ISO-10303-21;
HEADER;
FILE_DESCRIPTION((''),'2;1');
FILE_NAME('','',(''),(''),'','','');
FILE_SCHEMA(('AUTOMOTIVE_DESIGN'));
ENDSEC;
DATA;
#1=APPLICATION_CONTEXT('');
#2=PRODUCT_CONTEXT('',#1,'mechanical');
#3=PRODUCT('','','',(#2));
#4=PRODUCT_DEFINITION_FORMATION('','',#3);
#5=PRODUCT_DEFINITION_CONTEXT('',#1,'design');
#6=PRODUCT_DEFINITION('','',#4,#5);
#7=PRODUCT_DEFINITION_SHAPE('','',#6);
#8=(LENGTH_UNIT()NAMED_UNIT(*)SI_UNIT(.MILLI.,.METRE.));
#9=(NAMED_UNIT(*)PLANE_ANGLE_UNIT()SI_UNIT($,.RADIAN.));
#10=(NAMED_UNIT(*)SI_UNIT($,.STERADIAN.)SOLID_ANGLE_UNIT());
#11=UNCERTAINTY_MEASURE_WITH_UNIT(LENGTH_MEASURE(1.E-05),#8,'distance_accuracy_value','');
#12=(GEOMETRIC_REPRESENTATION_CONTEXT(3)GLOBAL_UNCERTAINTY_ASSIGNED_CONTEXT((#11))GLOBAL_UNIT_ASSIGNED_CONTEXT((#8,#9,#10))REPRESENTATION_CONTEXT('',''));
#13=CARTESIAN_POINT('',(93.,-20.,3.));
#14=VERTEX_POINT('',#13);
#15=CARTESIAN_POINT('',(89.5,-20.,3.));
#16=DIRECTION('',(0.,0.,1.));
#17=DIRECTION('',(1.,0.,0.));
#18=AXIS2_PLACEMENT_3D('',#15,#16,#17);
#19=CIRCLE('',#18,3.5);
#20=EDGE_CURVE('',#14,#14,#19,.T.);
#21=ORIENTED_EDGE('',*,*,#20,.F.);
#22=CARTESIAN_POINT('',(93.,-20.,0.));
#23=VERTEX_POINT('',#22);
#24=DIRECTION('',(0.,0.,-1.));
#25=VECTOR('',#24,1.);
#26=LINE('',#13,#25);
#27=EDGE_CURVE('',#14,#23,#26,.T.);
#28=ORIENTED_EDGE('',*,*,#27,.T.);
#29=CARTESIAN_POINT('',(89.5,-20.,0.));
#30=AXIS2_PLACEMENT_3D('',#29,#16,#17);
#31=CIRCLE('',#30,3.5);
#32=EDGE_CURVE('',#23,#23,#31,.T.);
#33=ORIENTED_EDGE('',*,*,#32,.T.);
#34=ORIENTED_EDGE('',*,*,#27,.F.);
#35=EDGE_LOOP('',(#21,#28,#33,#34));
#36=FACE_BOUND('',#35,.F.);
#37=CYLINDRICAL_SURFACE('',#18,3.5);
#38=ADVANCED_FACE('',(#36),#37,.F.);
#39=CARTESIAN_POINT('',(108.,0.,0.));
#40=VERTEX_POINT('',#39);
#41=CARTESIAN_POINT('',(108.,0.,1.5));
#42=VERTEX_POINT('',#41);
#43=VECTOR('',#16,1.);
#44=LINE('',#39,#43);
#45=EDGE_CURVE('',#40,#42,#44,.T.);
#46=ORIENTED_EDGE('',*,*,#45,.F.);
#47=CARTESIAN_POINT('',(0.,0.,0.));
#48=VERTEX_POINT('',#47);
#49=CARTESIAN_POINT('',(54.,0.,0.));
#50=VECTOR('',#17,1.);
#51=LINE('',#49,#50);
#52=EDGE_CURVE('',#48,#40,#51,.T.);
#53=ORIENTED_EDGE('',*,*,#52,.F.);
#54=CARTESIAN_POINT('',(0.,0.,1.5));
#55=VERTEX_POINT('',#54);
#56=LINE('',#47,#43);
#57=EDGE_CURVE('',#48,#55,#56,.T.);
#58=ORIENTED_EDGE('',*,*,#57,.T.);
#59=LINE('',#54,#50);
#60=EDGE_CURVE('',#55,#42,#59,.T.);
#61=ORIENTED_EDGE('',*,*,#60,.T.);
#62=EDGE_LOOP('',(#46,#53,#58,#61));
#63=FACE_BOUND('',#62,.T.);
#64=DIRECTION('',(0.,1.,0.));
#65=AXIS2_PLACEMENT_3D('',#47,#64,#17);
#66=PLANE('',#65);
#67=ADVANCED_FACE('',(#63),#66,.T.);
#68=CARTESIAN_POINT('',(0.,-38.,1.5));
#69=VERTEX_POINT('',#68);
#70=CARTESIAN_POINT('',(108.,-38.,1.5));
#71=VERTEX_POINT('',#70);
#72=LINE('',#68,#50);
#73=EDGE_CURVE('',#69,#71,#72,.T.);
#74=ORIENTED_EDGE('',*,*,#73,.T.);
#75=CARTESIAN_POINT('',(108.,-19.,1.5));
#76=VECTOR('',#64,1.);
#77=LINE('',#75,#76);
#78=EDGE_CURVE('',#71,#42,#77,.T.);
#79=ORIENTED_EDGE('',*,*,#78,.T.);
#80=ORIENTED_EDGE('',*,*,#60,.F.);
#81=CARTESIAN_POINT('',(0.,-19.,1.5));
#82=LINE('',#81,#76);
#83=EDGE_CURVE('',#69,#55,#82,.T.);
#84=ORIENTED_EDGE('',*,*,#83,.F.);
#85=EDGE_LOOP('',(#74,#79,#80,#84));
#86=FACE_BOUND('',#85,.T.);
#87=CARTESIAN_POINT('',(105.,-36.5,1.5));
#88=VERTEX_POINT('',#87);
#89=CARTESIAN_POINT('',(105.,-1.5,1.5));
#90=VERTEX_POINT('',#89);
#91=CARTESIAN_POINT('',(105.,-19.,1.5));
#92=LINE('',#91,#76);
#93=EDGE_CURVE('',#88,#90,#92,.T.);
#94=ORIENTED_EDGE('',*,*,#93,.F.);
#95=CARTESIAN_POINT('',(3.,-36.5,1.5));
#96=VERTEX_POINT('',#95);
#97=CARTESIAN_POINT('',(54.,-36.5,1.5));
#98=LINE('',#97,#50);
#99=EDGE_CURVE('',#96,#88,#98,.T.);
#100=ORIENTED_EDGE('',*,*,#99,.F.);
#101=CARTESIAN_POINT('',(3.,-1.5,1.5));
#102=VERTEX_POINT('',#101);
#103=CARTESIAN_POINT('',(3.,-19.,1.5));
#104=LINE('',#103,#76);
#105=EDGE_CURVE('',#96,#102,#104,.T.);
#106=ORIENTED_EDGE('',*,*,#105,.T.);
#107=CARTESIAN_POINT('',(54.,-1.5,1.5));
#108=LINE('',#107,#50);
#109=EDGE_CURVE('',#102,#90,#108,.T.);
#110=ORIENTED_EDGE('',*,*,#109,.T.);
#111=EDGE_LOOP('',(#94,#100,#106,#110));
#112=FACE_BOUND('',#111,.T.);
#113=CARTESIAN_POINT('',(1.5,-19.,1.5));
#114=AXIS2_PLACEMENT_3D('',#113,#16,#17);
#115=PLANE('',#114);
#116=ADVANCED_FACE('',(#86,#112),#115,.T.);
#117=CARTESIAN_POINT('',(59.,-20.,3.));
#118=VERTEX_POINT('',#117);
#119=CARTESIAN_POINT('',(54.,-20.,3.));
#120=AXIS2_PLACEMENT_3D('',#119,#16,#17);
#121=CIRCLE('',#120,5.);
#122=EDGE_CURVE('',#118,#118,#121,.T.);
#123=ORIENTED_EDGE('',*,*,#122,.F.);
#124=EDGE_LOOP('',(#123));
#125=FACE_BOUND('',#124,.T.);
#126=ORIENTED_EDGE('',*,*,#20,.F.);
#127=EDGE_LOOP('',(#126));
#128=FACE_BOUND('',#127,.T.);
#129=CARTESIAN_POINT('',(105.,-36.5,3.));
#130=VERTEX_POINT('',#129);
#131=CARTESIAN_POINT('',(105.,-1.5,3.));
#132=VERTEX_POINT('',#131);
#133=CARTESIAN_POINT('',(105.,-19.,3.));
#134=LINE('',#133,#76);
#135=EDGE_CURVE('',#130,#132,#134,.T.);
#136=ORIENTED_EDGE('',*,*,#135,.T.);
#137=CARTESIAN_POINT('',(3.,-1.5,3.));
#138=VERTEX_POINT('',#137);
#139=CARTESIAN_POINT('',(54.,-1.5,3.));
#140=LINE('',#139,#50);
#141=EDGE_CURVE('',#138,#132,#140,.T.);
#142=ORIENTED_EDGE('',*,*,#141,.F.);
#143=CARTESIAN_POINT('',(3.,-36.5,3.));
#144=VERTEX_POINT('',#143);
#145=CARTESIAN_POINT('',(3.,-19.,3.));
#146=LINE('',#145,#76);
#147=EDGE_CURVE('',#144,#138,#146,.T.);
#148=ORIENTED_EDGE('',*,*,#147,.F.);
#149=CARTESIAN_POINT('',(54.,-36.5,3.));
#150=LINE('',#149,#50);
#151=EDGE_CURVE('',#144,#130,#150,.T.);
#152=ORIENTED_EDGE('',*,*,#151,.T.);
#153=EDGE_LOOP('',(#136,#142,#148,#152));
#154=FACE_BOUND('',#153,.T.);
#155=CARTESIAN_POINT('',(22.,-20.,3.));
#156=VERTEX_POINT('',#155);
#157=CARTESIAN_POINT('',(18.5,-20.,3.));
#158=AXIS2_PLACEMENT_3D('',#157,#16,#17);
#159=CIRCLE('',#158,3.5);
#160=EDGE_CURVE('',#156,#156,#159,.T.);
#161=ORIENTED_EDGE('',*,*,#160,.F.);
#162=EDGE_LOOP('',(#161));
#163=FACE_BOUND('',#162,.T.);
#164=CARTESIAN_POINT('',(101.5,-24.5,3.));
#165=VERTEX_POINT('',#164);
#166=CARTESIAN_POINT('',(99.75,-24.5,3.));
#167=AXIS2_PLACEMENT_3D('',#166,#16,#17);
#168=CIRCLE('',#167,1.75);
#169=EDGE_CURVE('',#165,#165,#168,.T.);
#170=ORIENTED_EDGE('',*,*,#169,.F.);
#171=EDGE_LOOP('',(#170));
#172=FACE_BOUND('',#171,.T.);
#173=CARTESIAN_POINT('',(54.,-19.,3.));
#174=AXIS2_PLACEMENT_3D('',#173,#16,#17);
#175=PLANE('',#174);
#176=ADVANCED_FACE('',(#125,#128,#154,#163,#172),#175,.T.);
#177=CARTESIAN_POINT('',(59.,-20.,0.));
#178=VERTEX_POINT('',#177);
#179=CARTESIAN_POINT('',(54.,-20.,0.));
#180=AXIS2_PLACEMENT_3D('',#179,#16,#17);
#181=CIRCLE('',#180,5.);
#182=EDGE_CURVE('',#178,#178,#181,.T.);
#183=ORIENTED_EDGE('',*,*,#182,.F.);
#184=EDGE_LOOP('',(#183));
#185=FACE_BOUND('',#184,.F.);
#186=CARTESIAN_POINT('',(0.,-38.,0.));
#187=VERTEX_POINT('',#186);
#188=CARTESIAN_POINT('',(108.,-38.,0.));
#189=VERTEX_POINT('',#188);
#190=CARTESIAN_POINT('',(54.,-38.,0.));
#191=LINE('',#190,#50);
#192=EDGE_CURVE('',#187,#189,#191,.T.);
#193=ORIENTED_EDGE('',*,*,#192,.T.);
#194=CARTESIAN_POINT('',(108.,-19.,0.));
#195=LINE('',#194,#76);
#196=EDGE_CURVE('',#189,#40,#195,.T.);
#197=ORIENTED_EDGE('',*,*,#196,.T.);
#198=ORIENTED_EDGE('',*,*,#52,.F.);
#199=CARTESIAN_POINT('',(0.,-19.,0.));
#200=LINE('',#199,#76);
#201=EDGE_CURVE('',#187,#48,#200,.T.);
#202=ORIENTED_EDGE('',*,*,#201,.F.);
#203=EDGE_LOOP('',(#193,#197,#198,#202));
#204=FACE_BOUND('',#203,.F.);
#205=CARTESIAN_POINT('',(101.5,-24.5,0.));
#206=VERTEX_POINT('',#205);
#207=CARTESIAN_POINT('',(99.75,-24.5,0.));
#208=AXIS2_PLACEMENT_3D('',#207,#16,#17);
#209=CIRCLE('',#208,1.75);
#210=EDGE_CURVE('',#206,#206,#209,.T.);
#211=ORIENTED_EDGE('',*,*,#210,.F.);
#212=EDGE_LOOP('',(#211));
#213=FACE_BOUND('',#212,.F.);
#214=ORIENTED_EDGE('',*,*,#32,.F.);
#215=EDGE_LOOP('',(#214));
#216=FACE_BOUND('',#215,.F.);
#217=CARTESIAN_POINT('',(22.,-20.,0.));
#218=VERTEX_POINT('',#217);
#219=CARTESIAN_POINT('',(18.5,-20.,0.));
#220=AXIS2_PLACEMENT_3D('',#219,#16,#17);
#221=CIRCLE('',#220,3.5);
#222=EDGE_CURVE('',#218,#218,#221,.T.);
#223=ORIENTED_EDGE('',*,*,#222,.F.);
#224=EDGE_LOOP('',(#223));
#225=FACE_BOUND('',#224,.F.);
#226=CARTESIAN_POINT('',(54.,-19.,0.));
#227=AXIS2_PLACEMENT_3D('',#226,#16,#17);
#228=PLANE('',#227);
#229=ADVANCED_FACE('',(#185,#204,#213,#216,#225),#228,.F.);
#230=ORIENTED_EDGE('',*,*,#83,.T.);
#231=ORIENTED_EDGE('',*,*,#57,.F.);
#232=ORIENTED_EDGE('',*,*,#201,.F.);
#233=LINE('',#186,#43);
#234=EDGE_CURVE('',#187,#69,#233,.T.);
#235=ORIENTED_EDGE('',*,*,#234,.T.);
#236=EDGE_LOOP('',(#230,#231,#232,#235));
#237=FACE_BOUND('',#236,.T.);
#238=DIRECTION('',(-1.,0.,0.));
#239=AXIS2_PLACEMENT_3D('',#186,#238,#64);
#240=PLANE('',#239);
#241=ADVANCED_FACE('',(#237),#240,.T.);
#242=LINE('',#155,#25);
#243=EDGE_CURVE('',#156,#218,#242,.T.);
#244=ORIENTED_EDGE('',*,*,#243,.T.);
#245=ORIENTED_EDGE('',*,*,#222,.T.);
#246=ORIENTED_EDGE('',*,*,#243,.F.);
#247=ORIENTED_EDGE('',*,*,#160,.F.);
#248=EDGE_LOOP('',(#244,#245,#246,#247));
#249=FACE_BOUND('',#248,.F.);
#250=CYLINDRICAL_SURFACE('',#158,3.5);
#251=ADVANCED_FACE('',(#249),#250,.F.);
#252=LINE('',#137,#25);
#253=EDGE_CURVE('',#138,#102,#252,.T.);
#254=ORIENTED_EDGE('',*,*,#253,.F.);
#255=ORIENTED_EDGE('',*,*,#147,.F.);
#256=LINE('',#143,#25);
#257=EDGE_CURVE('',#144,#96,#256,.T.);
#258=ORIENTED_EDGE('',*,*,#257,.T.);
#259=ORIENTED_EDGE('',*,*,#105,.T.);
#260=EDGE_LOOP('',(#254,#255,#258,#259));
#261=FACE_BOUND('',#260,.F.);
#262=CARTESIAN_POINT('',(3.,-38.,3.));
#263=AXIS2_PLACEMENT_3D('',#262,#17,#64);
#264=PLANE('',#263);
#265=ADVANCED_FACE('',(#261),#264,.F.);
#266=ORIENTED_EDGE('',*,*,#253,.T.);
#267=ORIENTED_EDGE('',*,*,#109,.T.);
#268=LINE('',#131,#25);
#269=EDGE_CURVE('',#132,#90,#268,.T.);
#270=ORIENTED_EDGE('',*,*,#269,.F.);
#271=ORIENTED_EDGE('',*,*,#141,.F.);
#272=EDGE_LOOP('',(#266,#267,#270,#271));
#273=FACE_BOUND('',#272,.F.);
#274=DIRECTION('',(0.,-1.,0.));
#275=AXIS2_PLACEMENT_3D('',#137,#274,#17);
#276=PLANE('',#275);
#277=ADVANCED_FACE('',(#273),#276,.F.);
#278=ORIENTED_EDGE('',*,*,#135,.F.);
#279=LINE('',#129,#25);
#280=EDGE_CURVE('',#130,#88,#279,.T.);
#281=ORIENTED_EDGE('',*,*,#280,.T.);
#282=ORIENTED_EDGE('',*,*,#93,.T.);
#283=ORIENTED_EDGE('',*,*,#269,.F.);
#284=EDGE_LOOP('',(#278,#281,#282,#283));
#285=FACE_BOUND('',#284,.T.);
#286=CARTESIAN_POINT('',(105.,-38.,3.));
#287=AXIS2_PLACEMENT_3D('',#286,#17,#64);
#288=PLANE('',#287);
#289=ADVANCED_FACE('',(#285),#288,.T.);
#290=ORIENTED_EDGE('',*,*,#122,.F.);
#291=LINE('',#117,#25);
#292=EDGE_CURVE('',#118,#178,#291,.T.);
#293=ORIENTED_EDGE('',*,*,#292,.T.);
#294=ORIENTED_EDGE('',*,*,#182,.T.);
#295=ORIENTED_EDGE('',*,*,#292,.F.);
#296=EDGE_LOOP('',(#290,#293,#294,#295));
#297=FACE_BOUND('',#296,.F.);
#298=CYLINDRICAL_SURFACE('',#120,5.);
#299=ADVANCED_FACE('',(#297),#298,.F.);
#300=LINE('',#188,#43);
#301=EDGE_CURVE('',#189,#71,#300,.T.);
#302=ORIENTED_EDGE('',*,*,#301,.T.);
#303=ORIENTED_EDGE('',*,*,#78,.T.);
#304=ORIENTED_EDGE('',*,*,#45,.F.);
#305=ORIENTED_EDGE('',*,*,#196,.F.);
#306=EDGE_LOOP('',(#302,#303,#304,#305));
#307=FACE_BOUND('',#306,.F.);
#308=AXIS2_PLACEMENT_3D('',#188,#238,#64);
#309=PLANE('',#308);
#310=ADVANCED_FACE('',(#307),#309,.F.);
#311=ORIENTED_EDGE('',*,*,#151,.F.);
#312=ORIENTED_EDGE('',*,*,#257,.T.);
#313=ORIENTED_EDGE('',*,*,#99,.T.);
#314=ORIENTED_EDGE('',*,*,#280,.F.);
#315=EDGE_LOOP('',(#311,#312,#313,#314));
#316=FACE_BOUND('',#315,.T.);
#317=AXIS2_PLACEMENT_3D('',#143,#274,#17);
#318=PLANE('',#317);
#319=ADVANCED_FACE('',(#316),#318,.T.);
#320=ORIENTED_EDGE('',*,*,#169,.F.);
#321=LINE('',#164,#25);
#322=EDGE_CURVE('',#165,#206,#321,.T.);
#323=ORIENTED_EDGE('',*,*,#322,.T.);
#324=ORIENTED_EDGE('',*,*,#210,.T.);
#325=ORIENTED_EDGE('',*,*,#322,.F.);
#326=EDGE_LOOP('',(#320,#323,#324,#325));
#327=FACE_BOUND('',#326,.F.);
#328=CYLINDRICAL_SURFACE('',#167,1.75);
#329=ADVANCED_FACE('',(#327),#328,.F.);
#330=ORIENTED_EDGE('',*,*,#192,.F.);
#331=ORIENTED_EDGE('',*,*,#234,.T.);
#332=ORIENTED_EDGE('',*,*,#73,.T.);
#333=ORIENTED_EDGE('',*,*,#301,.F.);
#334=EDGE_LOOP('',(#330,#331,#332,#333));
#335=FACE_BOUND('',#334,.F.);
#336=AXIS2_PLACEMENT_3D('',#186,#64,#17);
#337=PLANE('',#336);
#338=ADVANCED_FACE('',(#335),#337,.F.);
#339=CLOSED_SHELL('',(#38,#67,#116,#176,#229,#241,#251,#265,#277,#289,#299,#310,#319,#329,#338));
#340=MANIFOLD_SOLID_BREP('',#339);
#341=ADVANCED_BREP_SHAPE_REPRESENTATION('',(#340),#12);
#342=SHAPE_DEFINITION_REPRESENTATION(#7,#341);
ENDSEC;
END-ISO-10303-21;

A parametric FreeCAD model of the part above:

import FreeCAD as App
import Part
import Sketcher

V = App.Vector
Q = App.Units.Quantity

doc = App.newDocument("Part")
body = doc.addObject("PartDesign::Body", "Body")

# Sketch on XY plane
sketch1 = body.newObject("Sketcher::SketchObject", "Sketch")
sketch1.AttachmentSupport = (doc.getObject("XY_Plane"), [""])
sketch1.MapMode = "FlatFace"
sketch1.addGeometry(Part.LineSegment(V(0, 0, 0), V(0, -38, 0)), False)
sketch1.addGeometry(Part.LineSegment(V(0, -38, 0), V(108, -38, 0)), False)
sketch1.addGeometry(Part.LineSegment(V(108, -38, 0), V(108, 0, 0)), False)
sketch1.addGeometry(Part.LineSegment(V(108, 0, 0), V(0, 0, 0)), False)
sketch1.addConstraint(Sketcher.Constraint("Coincident", 0, 2, 1, 1))
sketch1.addConstraint(Sketcher.Constraint("Coincident", 1, 2, 2, 1))
sketch1.addConstraint(Sketcher.Constraint("Coincident", 2, 2, 3, 1))
sketch1.addConstraint(Sketcher.Constraint("Coincident", 3, 2, 0, 1))
sketch1.addConstraint(Sketcher.Constraint("Vertical", 0))
sketch1.addConstraint(Sketcher.Constraint("Horizontal", 1))
sketch1.addConstraint(Sketcher.Constraint("Vertical", 2))
sketch1.addConstraint(Sketcher.Constraint("Horizontal", 3))
sketch1.addConstraint(Sketcher.Constraint("Coincident", 3, 2, -1, 1))
sketch1.addConstraint(Sketcher.Constraint("DistanceX", 1, 1, 1, 2, Q("108 mm")))
sketch1.addConstraint(Sketcher.Constraint("DistanceY", 0, 2, 0, 1, Q("38 mm")))
pad1 = body.newObject("PartDesign::Pad", "Pad")
pad1.Profile = sketch1
pad1.Length = 3

# Sketch on XY plane
sketch2 = body.newObject("Sketcher::SketchObject", "Sketch001")
sketch2.AttachmentSupport = (doc.getObject("XY_Plane"), [""])
sketch2.MapMode = "FlatFace"
sketch2.AttachmentOffset = App.Placement(V(0, 0, 3), App.Rotation())
sketch2.addGeometry(Part.LineSegment(V(0, 0, 0), V(0, -38, 0)), False)
sketch2.addGeometry(Part.LineSegment(V(0, -38, 0), V(3, -38, 0)), False)
sketch2.addGeometry(Part.LineSegment(V(3, -38, 0), V(3, 0, 0)), False)
sketch2.addGeometry(Part.LineSegment(V(3, 0, 0), V(0, 0, 0)), False)
sketch2.addConstraint(Sketcher.Constraint("Coincident", 0, 2, 1, 1))
sketch2.addConstraint(Sketcher.Constraint("Coincident", 1, 2, 2, 1))
sketch2.addConstraint(Sketcher.Constraint("Coincident", 2, 2, 3, 1))
sketch2.addConstraint(Sketcher.Constraint("Coincident", 3, 2, 0, 1))
sketch2.addConstraint(Sketcher.Constraint("Vertical", 0))
sketch2.addConstraint(Sketcher.Constraint("Horizontal", 1))
sketch2.addConstraint(Sketcher.Constraint("Vertical", 2))
sketch2.addConstraint(Sketcher.Constraint("Horizontal", 3))
sketch2.addConstraint(Sketcher.Constraint("Coincident", 3, 2, -1, 1))
sketch2.addConstraint(Sketcher.Constraint("DistanceX", 1, 1, 1, 2, Q("3 mm")))
sketch2.addConstraint(Sketcher.Constraint("DistanceY", 0, 2, 0, 1, Q("38 mm")))
pocket1 = body.newObject("PartDesign::Pocket", "Pocket")
pocket1.Profile = sketch2
pocket1.Length = 1.5

# Sketch on XY plane
sketch3 = body.newObject("Sketcher::SketchObject", "Sketch002")
sketch3.AttachmentSupport = (doc.getObject("XY_Plane"), [""])
sketch3.MapMode = "FlatFace"
sketch3.AttachmentOffset = App.Placement(V(0, 0, 3), App.Rotation())
sketch3.addGeometry(Part.LineSegment(V(105, 0, 0), V(105, -38, 0)), False)
sketch3.addGeometry(Part.LineSegment(V(105, -38, 0), V(108, -38, 0)), False)
sketch3.addGeometry(Part.LineSegment(V(108, -38, 0), V(108, 0, 0)), False)
sketch3.addGeometry(Part.LineSegment(V(108, 0, 0), V(105, 0, 0)), False)
sketch3.addConstraint(Sketcher.Constraint("Coincident", 0, 2, 1, 1))
sketch3.addConstraint(Sketcher.Constraint("Coincident", 1, 2, 2, 1))
sketch3.addConstraint(Sketcher.Constraint("Coincident", 2, 2, 3, 1))
sketch3.addConstraint(Sketcher.Constraint("Coincident", 3, 2, 0, 1))
sketch3.addConstraint(Sketcher.Constraint("Vertical", 0))
sketch3.addConstraint(Sketcher.Constraint("Horizontal", 1))
sketch3.addConstraint(Sketcher.Constraint("Vertical", 2))
sketch3.addConstraint(Sketcher.Constraint("Horizontal", 3))
sketch3.addConstraint(Sketcher.Constraint("PointOnObject", 2, 2, -1))
sketch3.addConstraint(Sketcher.Constraint("DistanceX", 1, 1, 1, 2, Q("3 mm")))
sketch3.addConstraint(Sketcher.Constraint("DistanceY", 0, 2, 0, 1, Q("38 mm")))
sketch3.addConstraint(Sketcher.Constraint("DistanceX", -1, 1, 0, 2, Q("105 mm")))
pocket2 = body.newObject("PartDesign::Pocket", "Pocket001")
pocket2.Profile = sketch3
pocket2.Length = 1.5

# Sketch on XY plane
sketch4 = body.newObject("Sketcher::SketchObject", "Sketch003")
sketch4.AttachmentSupport = (doc.getObject("XY_Plane"), [""])
sketch4.MapMode = "FlatFace"
sketch4.AttachmentOffset = App.Placement(V(0, 0, 3), App.Rotation())
sketch4.addGeometry(Part.LineSegment(V(3, 0, 0), V(3, -1.5, 0)), False)
sketch4.addGeometry(Part.LineSegment(V(3, -1.5, 0), V(105, -1.5, 0)), False)
sketch4.addGeometry(Part.LineSegment(V(105, -1.5, 0), V(105, 0, 0)), False)
sketch4.addGeometry(Part.LineSegment(V(105, 0, 0), V(3, 0, 0)), False)
sketch4.addConstraint(Sketcher.Constraint("Coincident", 0, 2, 1, 1))
sketch4.addConstraint(Sketcher.Constraint("Coincident", 1, 2, 2, 1))
sketch4.addConstraint(Sketcher.Constraint("Coincident", 2, 2, 3, 1))
sketch4.addConstraint(Sketcher.Constraint("Coincident", 3, 2, 0, 1))
sketch4.addConstraint(Sketcher.Constraint("Vertical", 0))
sketch4.addConstraint(Sketcher.Constraint("Horizontal", 1))
sketch4.addConstraint(Sketcher.Constraint("Vertical", 2))
sketch4.addConstraint(Sketcher.Constraint("Horizontal", 3))
sketch4.addConstraint(Sketcher.Constraint("PointOnObject", 2, 2, -1))
sketch4.addConstraint(Sketcher.Constraint("DistanceX", 1, 1, 1, 2, Q("102 mm")))
sketch4.addConstraint(Sketcher.Constraint("DistanceY", 0, 2, 0, 1, Q("1.5 mm")))
sketch4.addConstraint(Sketcher.Constraint("DistanceX", -1, 1, 0, 2, Q("3 mm")))
pocket3 = body.newObject("PartDesign::Pocket", "Pocket002")
pocket3.Profile = sketch4
pocket3.Length = 1.5

# Sketch on XY plane
sketch5 = body.newObject("Sketcher::SketchObject", "Sketch004")
sketch5.AttachmentSupport = (doc.getObject("XY_Plane"), [""])
sketch5.MapMode = "FlatFace"
sketch5.AttachmentOffset = App.Placement(V(0, 0, 3), App.Rotation())
sketch5.addGeometry(Part.LineSegment(V(3, -36.5, 0), V(3, -38, 0)), False)
sketch5.addGeometry(Part.LineSegment(V(3, -38, 0), V(105, -38, 0)), False)
sketch5.addGeometry(Part.LineSegment(V(105, -38, 0), V(105, -36.5, 0)), False)
sketch5.addGeometry(Part.LineSegment(V(105, -36.5, 0), V(3, -36.5, 0)), False)
sketch5.addConstraint(Sketcher.Constraint("Coincident", 0, 2, 1, 1))
sketch5.addConstraint(Sketcher.Constraint("Coincident", 1, 2, 2, 1))
sketch5.addConstraint(Sketcher.Constraint("Coincident", 2, 2, 3, 1))
sketch5.addConstraint(Sketcher.Constraint("Coincident", 3, 2, 0, 1))
sketch5.addConstraint(Sketcher.Constraint("Vertical", 0))
sketch5.addConstraint(Sketcher.Constraint("Horizontal", 1))
sketch5.addConstraint(Sketcher.Constraint("Vertical", 2))
sketch5.addConstraint(Sketcher.Constraint("Horizontal", 3))
sketch5.addConstraint(Sketcher.Constraint("DistanceX", 1, 1, 1, 2, Q("102 mm")))
sketch5.addConstraint(Sketcher.Constraint("DistanceY", 0, 2, 0, 1, Q("1.5 mm")))
sketch5.addConstraint(Sketcher.Constraint("DistanceX", -1, 1, 0, 2, Q("3 mm")))
sketch5.addConstraint(Sketcher.Constraint("DistanceY", 0, 2, -1, 1, Q("38 mm")))
pocket4 = body.newObject("PartDesign::Pocket", "Pocket003")
pocket4.Profile = sketch5
pocket4.Length = 1.5

# Sketch on XY plane
sketch6 = body.newObject("Sketcher::SketchObject", "Sketch005")
sketch6.AttachmentSupport = (doc.getObject("XY_Plane"), [""])
sketch6.MapMode = "FlatFace"
sketch6.AttachmentOffset = App.Placement(V(0, 0, 3), App.Rotation())
sketch6.addGeometry(Part.Circle(V(54, -20, 0), V(0, 0, 1), 5), False)
sketch6.addConstraint(Sketcher.Constraint("Diameter", 0, Q("10 mm")))
sketch6.addConstraint(Sketcher.Constraint("DistanceX", -1, 1, 0, 3, Q("54 mm")))
sketch6.addConstraint(Sketcher.Constraint("DistanceY", 0, 3, -1, 1, Q("20 mm")))
pocket5 = body.newObject("PartDesign::Pocket", "Pocket004")
pocket5.Profile = sketch6
pocket5.Length = 3

# Sketch on XY plane
sketch7 = body.newObject("Sketcher::SketchObject", "Sketch006")
sketch7.AttachmentSupport = (doc.getObject("XY_Plane"), [""])
sketch7.MapMode = "FlatFace"
sketch7.AttachmentOffset = App.Placement(V(0, 0, 3), App.Rotation())
sketch7.addGeometry(Part.Circle(V(18.5, -20, 0), V(0, 0, 1), 3.5), False)
sketch7.addConstraint(Sketcher.Constraint("Diameter", 0, Q("7 mm")))
sketch7.addConstraint(Sketcher.Constraint("DistanceY", 0, 3, -1, 1, Q("20 mm")))
sketch7.addConstraint(Sketcher.Constraint("DistanceX", -1, 1, 0, 3, Q("18.5 mm")))
pocket6 = body.newObject("PartDesign::Pocket", "Pocket005")
pocket6.Profile = sketch7
pocket6.Length = 3

# Sketch on XY plane
sketch8 = body.newObject("Sketcher::SketchObject", "Sketch007")
sketch8.AttachmentSupport = (doc.getObject("XY_Plane"), [""])
sketch8.MapMode = "FlatFace"
sketch8.AttachmentOffset = App.Placement(V(0, 0, 3), App.Rotation())
sketch8.addGeometry(Part.Circle(V(89.5, -20, 0), V(0, 0, 1), 3.5), False)
sketch8.addConstraint(Sketcher.Constraint("Diameter", 0, Q("7 mm")))
sketch8.addConstraint(Sketcher.Constraint("DistanceY", 0, 3, -1, 1, Q("20 mm")))
sketch8.addConstraint(Sketcher.Constraint("DistanceX", -1, 1, 0, 3, Q("89.5 mm")))
pocket7 = body.newObject("PartDesign::Pocket", "Pocket006")
pocket7.Profile = sketch8
pocket7.Length = 3

# Sketch on XY plane
sketch9 = body.newObject("Sketcher::SketchObject", "Sketch008")
sketch9.AttachmentSupport = (doc.getObject("XY_Plane"), [""])
sketch9.MapMode = "FlatFace"
sketch9.AttachmentOffset = App.Placement(V(0, 0, 3), App.Rotation())
sketch9.addGeometry(Part.Circle(V(99.8, -24.5, 0), V(0, 0, 1), 1.8), False)
sketch9.addConstraint(Sketcher.Constraint("Diameter", 0, Q("3.5 mm")))
sketch9.addConstraint(Sketcher.Constraint("DistanceY", 0, 3, -1, 1, Q("24.5 mm")))
sketch9.addConstraint(Sketcher.Constraint("DistanceX", -1, 1, 0, 3, Q("99.75 mm")))
pocket8 = body.newObject("PartDesign::Pocket", "Pocket007")
pocket8.Profile = sketch9
pocket8.Length = 3

doc.recompute()
